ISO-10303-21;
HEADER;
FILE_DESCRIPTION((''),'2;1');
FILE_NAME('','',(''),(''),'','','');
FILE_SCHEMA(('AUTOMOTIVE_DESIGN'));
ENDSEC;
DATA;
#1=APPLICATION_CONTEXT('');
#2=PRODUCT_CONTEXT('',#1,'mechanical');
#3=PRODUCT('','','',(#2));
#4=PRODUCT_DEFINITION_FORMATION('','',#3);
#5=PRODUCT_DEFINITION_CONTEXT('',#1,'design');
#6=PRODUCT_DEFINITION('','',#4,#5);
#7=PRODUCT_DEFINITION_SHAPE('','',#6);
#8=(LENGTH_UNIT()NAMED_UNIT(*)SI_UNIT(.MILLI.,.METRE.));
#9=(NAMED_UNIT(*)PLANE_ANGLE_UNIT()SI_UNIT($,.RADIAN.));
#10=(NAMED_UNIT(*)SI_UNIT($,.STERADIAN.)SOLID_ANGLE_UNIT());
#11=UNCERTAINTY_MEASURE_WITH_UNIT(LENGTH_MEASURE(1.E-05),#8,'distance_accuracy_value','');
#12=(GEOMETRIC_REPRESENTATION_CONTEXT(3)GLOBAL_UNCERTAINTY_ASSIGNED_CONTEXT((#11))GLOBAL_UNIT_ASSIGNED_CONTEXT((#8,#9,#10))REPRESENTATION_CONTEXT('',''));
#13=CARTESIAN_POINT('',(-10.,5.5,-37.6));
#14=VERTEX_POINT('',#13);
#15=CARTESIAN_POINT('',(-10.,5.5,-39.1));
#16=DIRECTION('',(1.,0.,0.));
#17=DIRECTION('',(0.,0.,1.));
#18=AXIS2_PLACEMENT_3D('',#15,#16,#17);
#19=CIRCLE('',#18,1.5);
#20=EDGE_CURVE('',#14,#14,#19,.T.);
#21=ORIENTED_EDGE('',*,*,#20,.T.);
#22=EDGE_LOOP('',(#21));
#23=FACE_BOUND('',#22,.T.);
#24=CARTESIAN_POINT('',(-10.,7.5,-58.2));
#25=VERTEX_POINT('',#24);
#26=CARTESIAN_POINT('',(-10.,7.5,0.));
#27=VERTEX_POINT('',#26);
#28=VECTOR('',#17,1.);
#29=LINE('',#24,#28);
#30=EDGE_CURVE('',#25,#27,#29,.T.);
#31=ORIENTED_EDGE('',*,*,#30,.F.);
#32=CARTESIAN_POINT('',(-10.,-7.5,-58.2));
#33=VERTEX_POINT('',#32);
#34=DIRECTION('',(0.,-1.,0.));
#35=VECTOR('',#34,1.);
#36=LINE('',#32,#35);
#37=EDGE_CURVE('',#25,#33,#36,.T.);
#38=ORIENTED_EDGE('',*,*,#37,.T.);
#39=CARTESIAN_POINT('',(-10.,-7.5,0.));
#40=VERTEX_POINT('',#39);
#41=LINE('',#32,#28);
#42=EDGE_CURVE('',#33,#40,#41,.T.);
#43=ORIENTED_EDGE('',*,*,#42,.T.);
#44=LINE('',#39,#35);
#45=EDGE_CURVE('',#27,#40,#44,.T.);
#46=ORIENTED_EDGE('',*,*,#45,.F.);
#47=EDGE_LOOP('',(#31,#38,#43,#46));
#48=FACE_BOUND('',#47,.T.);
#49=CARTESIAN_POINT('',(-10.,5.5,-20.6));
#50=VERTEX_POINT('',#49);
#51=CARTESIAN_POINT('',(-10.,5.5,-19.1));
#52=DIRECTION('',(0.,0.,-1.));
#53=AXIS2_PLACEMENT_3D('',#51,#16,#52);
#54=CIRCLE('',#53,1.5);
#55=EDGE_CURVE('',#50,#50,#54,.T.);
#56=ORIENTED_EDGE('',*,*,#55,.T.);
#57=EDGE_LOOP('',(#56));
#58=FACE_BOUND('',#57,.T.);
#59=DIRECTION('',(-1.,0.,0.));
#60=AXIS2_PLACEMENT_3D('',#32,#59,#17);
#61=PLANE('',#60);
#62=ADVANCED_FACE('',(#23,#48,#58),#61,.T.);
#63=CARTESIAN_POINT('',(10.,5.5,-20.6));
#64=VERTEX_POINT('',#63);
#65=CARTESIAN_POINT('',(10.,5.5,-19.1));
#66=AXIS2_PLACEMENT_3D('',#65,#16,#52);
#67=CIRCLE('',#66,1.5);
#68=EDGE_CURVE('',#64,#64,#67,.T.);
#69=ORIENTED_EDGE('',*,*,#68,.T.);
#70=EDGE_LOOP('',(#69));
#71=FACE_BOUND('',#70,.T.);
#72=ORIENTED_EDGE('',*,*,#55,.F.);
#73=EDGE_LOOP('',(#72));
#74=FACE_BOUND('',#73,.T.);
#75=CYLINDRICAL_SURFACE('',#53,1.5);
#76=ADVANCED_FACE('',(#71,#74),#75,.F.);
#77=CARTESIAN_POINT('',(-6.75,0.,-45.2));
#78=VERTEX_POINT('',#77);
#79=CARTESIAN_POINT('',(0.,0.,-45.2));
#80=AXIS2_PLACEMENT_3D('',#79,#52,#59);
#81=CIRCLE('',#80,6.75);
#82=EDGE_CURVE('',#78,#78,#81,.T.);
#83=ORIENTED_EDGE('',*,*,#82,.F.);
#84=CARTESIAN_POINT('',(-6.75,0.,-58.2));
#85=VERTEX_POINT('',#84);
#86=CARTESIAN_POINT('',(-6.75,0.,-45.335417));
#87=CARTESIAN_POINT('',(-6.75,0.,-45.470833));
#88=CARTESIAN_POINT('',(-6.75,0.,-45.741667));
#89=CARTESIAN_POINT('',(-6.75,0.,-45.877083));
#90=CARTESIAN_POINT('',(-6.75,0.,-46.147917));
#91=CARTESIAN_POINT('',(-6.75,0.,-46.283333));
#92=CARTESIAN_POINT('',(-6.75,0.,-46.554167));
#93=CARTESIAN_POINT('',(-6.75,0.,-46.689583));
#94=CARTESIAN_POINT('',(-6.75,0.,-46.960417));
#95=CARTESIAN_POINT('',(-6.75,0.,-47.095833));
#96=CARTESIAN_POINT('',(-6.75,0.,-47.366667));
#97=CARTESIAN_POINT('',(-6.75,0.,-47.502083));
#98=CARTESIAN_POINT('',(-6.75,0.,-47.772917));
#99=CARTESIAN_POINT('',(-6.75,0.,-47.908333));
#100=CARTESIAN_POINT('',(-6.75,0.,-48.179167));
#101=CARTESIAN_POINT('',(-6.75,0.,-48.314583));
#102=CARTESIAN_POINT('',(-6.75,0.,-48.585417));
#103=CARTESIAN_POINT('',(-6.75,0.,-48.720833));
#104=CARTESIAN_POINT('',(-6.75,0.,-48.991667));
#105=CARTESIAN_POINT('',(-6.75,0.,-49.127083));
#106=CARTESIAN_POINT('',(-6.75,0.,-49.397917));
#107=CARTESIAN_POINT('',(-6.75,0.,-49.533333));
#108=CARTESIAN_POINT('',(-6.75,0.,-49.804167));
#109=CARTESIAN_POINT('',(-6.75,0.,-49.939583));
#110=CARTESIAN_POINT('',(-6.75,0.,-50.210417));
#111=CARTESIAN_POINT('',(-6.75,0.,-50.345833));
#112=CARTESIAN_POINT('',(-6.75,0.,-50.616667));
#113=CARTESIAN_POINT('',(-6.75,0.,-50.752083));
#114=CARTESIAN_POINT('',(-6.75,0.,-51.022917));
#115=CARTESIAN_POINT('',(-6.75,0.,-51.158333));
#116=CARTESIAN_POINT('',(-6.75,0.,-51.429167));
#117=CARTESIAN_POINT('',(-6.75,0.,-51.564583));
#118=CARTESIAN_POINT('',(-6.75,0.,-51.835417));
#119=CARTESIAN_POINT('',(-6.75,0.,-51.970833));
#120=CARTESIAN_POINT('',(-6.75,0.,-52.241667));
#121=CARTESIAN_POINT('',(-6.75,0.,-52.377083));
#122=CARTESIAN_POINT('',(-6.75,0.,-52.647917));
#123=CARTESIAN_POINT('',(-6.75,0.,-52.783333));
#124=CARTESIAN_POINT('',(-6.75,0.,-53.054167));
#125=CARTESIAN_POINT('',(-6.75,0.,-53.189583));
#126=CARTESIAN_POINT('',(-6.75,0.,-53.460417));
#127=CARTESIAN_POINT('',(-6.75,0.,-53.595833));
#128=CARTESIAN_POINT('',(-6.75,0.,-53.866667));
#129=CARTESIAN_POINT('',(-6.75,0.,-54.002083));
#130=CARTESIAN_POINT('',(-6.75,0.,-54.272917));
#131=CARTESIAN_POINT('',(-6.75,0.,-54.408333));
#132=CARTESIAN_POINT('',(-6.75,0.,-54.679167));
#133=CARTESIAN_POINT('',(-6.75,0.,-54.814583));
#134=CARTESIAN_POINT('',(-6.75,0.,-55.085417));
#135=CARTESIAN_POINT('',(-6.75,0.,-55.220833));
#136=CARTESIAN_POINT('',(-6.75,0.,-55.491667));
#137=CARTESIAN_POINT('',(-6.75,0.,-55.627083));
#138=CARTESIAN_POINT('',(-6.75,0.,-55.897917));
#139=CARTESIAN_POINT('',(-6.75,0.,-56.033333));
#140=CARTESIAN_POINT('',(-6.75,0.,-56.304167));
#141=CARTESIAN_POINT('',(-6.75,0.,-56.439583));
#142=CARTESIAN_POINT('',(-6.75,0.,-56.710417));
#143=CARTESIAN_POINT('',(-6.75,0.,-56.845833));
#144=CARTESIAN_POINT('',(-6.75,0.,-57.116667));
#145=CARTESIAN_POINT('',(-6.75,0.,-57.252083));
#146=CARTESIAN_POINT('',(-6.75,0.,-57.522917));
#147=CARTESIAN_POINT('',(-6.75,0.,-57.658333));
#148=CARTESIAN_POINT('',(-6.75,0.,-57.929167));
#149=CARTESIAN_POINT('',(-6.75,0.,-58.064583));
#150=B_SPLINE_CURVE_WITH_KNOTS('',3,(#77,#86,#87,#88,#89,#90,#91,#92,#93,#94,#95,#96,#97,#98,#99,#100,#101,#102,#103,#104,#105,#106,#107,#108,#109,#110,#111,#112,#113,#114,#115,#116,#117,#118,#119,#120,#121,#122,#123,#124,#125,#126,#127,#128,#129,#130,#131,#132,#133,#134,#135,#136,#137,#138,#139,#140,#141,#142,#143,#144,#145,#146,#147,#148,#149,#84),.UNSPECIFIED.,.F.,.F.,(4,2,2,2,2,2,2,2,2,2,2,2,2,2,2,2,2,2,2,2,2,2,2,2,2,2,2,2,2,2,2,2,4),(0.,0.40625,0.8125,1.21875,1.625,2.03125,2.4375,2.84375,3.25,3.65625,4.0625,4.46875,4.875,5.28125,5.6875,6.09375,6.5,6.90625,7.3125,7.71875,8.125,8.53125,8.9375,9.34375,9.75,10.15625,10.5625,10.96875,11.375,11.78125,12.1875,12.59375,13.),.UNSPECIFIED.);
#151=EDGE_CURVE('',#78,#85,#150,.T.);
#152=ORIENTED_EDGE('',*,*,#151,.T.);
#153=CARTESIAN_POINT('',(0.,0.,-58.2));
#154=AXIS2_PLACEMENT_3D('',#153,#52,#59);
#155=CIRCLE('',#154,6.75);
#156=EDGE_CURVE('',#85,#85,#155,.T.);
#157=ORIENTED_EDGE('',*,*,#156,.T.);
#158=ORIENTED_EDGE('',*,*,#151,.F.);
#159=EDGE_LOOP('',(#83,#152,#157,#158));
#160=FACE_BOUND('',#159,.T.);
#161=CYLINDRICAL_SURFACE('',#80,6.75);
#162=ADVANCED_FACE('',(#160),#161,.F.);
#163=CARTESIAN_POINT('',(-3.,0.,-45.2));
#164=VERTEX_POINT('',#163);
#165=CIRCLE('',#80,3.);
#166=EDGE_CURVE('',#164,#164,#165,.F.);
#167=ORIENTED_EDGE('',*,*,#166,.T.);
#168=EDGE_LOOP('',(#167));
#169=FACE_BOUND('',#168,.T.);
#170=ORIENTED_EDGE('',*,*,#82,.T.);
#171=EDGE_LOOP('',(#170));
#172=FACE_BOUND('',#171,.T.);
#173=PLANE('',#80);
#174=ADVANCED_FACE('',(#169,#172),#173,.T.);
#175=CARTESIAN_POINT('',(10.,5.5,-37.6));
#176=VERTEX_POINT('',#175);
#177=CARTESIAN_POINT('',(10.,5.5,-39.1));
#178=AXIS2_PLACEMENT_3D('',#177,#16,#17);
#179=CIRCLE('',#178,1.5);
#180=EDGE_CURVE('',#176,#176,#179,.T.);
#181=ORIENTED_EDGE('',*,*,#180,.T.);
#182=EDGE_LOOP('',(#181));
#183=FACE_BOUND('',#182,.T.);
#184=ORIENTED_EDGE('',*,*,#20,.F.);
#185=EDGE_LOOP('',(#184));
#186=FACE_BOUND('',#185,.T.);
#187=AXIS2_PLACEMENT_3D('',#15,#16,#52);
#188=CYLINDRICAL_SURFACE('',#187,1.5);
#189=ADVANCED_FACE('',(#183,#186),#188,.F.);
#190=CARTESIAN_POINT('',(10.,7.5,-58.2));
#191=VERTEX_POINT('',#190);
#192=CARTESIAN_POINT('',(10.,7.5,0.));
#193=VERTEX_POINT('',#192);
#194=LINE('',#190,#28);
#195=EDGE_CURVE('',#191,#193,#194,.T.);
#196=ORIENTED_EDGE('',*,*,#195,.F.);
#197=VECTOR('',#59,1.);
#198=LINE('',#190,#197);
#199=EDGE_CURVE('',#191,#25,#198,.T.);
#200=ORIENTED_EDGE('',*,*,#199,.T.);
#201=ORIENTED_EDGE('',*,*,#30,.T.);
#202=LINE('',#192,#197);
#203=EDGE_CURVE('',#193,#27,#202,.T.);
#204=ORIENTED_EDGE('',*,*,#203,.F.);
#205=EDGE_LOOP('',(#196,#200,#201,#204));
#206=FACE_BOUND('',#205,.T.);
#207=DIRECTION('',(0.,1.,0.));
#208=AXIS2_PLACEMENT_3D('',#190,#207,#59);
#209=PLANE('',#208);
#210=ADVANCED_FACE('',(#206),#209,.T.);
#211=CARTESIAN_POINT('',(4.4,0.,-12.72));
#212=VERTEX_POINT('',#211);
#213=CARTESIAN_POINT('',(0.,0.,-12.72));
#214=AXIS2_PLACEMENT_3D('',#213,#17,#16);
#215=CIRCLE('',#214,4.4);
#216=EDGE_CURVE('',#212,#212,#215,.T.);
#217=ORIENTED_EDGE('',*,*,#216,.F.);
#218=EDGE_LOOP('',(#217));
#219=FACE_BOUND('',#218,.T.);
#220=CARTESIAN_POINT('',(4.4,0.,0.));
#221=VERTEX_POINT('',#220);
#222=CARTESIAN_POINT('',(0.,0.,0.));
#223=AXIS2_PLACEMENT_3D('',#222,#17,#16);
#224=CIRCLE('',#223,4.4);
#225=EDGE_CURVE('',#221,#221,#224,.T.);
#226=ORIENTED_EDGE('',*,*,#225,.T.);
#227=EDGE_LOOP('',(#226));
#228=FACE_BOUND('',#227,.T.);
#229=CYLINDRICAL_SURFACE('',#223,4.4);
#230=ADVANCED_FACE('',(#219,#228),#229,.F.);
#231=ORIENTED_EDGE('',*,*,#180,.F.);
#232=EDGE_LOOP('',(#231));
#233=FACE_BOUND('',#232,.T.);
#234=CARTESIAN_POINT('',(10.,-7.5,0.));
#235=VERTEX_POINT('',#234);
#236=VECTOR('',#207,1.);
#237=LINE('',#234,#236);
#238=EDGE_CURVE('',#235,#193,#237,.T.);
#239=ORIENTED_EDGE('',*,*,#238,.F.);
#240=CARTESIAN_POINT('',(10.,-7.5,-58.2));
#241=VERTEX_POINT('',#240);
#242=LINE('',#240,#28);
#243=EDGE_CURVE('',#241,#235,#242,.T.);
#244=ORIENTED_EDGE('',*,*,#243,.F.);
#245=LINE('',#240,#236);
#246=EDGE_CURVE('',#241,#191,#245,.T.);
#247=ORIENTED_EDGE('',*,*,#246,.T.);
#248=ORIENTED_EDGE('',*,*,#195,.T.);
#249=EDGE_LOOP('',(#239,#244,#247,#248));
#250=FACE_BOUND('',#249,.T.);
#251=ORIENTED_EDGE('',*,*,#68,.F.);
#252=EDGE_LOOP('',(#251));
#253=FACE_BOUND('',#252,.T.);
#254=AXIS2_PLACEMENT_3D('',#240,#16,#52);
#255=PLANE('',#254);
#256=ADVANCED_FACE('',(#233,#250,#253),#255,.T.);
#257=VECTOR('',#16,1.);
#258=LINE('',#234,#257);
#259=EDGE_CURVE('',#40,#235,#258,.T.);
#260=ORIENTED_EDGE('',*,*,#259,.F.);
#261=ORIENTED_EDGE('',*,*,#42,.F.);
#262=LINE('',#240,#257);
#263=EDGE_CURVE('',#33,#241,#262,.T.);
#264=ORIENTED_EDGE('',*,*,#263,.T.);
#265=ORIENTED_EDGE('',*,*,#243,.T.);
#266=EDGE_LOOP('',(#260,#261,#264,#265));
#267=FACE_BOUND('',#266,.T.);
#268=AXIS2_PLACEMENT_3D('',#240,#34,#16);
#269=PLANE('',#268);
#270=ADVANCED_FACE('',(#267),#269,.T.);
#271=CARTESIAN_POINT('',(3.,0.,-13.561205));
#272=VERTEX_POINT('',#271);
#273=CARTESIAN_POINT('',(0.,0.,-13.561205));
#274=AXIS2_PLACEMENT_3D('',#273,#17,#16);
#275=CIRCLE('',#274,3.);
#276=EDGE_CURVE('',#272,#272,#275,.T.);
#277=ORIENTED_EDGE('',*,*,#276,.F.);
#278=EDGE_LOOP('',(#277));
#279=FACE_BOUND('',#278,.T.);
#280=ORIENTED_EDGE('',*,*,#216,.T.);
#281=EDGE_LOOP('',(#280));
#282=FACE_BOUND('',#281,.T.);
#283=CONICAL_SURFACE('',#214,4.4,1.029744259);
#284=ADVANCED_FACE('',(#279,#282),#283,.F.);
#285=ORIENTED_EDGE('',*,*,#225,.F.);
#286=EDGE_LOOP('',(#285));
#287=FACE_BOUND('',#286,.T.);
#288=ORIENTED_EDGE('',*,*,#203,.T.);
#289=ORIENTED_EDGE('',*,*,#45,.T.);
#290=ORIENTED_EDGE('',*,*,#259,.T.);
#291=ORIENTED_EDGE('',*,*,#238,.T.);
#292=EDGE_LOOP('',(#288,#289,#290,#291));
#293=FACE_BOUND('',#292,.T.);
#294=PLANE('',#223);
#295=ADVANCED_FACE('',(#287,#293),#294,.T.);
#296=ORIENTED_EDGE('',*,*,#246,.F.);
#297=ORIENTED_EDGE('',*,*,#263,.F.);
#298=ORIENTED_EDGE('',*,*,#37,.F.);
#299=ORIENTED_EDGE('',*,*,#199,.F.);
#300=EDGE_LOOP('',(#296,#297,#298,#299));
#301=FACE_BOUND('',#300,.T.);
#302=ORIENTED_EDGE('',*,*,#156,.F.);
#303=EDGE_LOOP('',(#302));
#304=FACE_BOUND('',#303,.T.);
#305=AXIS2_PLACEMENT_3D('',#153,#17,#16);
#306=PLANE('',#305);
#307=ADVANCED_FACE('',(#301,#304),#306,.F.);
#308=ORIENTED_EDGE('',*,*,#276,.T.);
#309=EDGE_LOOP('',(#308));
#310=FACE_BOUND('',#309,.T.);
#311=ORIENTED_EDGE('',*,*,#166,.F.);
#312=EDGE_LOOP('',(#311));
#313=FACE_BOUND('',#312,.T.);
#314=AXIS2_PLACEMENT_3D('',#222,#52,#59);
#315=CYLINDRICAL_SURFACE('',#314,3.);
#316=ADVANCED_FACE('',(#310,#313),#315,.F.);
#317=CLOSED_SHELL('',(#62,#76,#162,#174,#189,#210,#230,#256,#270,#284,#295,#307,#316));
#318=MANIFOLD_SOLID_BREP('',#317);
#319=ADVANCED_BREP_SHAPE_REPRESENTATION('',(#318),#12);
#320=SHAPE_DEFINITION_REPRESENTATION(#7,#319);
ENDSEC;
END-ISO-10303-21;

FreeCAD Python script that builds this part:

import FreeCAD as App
import Part
import Sketcher
from FreeCAD import Vector

doc = App.newDocument("Part")
params = doc.addObject("Spreadsheet::Sheet", "Params")
for row, (alias, value) in enumerate([
    ("sketch1_width", "20 mm"),
    ("sketch1_height", "15 mm"),
    ("pad1_length", "58.2 mm"),
    ("sketch2_diameter", "6 mm"),
    ("sketch3_diameter", "13.5 mm"),
    ("pocket2_length", "13 mm"),
    ("sketch4_diameter", "3 mm"),
    ("sketch5_diameter", "8.8 mm"),
    ("hole_diameter", "8.8 mm"),
    ("hole_depth", "12.72 mm"),
], start=1):
    params.set(f"A{row}", alias)
    params.set(f"B{row}", "=" + value)
    params.setAlias(f"B{row}", alias)

body = doc.addObject("PartDesign::Body", "Body")

# Sketch on XY plane
sketch1 = body.newObject("Sketcher::SketchObject", "Sketch")
sketch1.AttachmentSupport = (doc.getObject("XY_Plane"), [""])
sketch1.MapMode = "FlatFace"
sketch1.addGeometry(Part.LineSegment(Vector(-10, 7.5, 0), Vector(-10, -7.5, 0)), False)
sketch1.addGeometry(Part.LineSegment(Vector(-10, -7.5, 0), Vector(10, -7.5, 0)), False)
sketch1.addGeometry(Part.LineSegment(Vector(10, -7.5, 0), Vector(10, 7.5, 0)), False)
sketch1.addGeometry(Part.LineSegment(Vector(10, 7.5, 0), Vector(-10, 7.5, 0)), False)
sketch1.addConstraint(Sketcher.Constraint("Coincident", 0, 2, 1, 1))
sketch1.addConstraint(Sketcher.Constraint("Coincident", 1, 2, 2, 1))
sketch1.addConstraint(Sketcher.Constraint("Coincident", 2, 2, 3, 1))
sketch1.addConstraint(Sketcher.Constraint("Coincident", 3, 2, 0, 1))
sketch1.addConstraint(Sketcher.Constraint("Vertical", 0))
sketch1.addConstraint(Sketcher.Constraint("Horizontal", 1))
sketch1.addConstraint(Sketcher.Constraint("Vertical", 2))
sketch1.addConstraint(Sketcher.Constraint("Horizontal", 3))
sketch1.addConstraint(Sketcher.Constraint("Symmetric", 0, 2, 2, 2, -1, 1))
sketch1.addConstraint(Sketcher.Constraint("DistanceX", 1, 1, 1, 2, 20.0))
sketch1.addConstraint(Sketcher.Constraint("DistanceY", 0, 2, 0, 1, 15.0))
sketch1.setExpression("Constraints[9]", "Params.sketch1_width")
sketch1.setExpression("Constraints[10]", "Params.sketch1_height")
pad1 = body.newObject("PartDesign::Pad", "Pad")
pad1.Profile = sketch1
pad1.setExpression("Length", "Params.pad1_length")
pad1.Reversed = True

# Sketch on XY plane
sketch2 = body.newObject("Sketcher::SketchObject", "Sketch001")
sketch2.AttachmentSupport = (doc.getObject("XY_Plane"), [""])
sketch2.MapMode = "FlatFace"
sketch2.AttachmentOffset = App.Placement(Vector(0, 0, -58.2), App.Rotation())
sketch2.addGeometry(Part.Circle(Vector(0, 0, 0), Vector(0, 0, 1), 3), False)
sketch2.addConstraint(Sketcher.Constraint("Coincident", 0, 3, -1, 1))
sketch2.addConstraint(Sketcher.Constraint("Diameter", 0, 6.0))
sketch2.setExpression("Constraints[1]", "Params.sketch2_diameter")
pocket1 = body.newObject("PartDesign::Pocket", "Pocket")
pocket1.Profile = sketch2
pocket1.Type = "ThroughAll"
pocket1.Reversed = True

# Sketch on XY plane
sketch3 = body.newObject("Sketcher::SketchObject", "Sketch002")
sketch3.AttachmentSupport = (doc.getObject("XY_Plane"), [""])
sketch3.MapMode = "FlatFace"
sketch3.AttachmentOffset = App.Placement(Vector(0, 0, -58.2), App.Rotation())
sketch3.addGeometry(Part.Circle(Vector(0, 0, 0), Vector(0, 0, 1), 6.75), False)
sketch3.addConstraint(Sketcher.Constraint("Coincident", 0, 3, -1, 1))
sketch3.addConstraint(Sketcher.Constraint("Diameter", 0, 13.5))
sketch3.setExpression("Constraints[1]", "Params.sketch3_diameter")
pocket2 = body.newObject("PartDesign::Pocket", "Pocket001")
pocket2.Profile = sketch3
pocket2.setExpression("Length", "Params.pocket2_length")
pocket2.Reversed = True

# Sketch on YZ plane
sketch4 = body.newObject("Sketcher::SketchObject", "Sketch003")
sketch4.AttachmentSupport = (doc.getObject("YZ_Plane"), [""])
sketch4.MapMode = "FlatFace"
sketch4.AttachmentOffset = App.Placement(Vector(0, 0, 10), App.Rotation())
sketch4.addGeometry(Part.Circle(Vector(5.5, -19.1, 0), Vector(0, 0, 1), 1.5), False)
sketch4.addGeometry(Part.Circle(Vector(5.5, -39.1, 0), Vector(0, 0, 1), 1.5), False)
sketch4.addConstraint(Sketcher.Constraint("Equal", 0, 1))
sketch4.addConstraint(Sketcher.Constraint("Vertical", 0, 3, 1, 3))
sketch4.addConstraint(Sketcher.Constraint("Diameter", 0, 3.0))
sketch4.addConstraint(Sketcher.Constraint("DistanceY", 1, 3, 0, 3, 20.0))
sketch4.addConstraint(Sketcher.Constraint("DistanceX", -1, 1, 0, 3, 5.5))
sketch4.addConstraint(Sketcher.Constraint("DistanceY", 0, 3, -1, 1, 19.1))
sketch4.setExpression("Constraints[2]", "Params.sketch4_diameter")
pocket3 = body.newObject("PartDesign::Pocket", "Pocket002")
pocket3.Profile = sketch4
pocket3.Type = "ThroughAll"

# Sketch on XY plane
sketch5 = body.newObject("Sketcher::SketchObject", "Sketch004")
sketch5.AttachmentSupport = (doc.getObject("XY_Plane"), [""])
sketch5.MapMode = "FlatFace"
sketch5.addGeometry(Part.Circle(Vector(0, 0, 0), Vector(0, 0, 1), 4.4), False)
sketch5.addConstraint(Sketcher.Constraint("Coincident", 0, 3, -1, 1))
sketch5.addConstraint(Sketcher.Constraint("Diameter", 0, 8.8))
sketch5.setExpression("Constraints[1]", "Params.sketch5_diameter")
doc.recompute()
hole = body.newObject("PartDesign::Hole", "Hole")
hole.Profile = sketch5
hole.ThreadType = "None"
hole.setExpression("Diameter", "Params.hole_diameter")
hole.DepthType = "Dimension"
hole.setExpression("Depth", "Params.hole_depth")
hole.DrillPoint = "Angled"
hole.DrillPointAngle = 118

doc.recompute()
